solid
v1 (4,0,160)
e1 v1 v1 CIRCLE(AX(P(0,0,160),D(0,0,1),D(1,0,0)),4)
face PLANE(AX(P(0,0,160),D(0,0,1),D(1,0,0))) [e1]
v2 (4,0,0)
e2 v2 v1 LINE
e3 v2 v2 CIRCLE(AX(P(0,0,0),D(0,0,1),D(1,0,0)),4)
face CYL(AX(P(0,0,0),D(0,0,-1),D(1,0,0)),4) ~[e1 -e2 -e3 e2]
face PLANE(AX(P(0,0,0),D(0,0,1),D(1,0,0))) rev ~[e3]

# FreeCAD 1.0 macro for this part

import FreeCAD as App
import Part
import Sketcher

doc = App.newDocument("Part")
body = doc.addObject("PartDesign::Body", "Body")

sketch1 = body.newObject("Sketcher::SketchObject", "Sketch")
sketch1.AttachmentSupport = (doc.getObject("XY_Plane"), [""])
sketch1.MapMode = "FlatFace"
sketch1.addGeometry(Part.Circle(App.Vector(0, 0, 0), App.Vector(0, 0, 1), 4), False)
sketch1.addConstraint(Sketcher.Constraint("Coincident", 0, 3, -1, 1))
sketch1.addConstraint(Sketcher.Constraint("Diameter", 0, 8.0))
pad1 = body.newObject("PartDesign::Pad", "Pad")
pad1.Profile = sketch1
pad1.Length = 160

doc.recompute()
